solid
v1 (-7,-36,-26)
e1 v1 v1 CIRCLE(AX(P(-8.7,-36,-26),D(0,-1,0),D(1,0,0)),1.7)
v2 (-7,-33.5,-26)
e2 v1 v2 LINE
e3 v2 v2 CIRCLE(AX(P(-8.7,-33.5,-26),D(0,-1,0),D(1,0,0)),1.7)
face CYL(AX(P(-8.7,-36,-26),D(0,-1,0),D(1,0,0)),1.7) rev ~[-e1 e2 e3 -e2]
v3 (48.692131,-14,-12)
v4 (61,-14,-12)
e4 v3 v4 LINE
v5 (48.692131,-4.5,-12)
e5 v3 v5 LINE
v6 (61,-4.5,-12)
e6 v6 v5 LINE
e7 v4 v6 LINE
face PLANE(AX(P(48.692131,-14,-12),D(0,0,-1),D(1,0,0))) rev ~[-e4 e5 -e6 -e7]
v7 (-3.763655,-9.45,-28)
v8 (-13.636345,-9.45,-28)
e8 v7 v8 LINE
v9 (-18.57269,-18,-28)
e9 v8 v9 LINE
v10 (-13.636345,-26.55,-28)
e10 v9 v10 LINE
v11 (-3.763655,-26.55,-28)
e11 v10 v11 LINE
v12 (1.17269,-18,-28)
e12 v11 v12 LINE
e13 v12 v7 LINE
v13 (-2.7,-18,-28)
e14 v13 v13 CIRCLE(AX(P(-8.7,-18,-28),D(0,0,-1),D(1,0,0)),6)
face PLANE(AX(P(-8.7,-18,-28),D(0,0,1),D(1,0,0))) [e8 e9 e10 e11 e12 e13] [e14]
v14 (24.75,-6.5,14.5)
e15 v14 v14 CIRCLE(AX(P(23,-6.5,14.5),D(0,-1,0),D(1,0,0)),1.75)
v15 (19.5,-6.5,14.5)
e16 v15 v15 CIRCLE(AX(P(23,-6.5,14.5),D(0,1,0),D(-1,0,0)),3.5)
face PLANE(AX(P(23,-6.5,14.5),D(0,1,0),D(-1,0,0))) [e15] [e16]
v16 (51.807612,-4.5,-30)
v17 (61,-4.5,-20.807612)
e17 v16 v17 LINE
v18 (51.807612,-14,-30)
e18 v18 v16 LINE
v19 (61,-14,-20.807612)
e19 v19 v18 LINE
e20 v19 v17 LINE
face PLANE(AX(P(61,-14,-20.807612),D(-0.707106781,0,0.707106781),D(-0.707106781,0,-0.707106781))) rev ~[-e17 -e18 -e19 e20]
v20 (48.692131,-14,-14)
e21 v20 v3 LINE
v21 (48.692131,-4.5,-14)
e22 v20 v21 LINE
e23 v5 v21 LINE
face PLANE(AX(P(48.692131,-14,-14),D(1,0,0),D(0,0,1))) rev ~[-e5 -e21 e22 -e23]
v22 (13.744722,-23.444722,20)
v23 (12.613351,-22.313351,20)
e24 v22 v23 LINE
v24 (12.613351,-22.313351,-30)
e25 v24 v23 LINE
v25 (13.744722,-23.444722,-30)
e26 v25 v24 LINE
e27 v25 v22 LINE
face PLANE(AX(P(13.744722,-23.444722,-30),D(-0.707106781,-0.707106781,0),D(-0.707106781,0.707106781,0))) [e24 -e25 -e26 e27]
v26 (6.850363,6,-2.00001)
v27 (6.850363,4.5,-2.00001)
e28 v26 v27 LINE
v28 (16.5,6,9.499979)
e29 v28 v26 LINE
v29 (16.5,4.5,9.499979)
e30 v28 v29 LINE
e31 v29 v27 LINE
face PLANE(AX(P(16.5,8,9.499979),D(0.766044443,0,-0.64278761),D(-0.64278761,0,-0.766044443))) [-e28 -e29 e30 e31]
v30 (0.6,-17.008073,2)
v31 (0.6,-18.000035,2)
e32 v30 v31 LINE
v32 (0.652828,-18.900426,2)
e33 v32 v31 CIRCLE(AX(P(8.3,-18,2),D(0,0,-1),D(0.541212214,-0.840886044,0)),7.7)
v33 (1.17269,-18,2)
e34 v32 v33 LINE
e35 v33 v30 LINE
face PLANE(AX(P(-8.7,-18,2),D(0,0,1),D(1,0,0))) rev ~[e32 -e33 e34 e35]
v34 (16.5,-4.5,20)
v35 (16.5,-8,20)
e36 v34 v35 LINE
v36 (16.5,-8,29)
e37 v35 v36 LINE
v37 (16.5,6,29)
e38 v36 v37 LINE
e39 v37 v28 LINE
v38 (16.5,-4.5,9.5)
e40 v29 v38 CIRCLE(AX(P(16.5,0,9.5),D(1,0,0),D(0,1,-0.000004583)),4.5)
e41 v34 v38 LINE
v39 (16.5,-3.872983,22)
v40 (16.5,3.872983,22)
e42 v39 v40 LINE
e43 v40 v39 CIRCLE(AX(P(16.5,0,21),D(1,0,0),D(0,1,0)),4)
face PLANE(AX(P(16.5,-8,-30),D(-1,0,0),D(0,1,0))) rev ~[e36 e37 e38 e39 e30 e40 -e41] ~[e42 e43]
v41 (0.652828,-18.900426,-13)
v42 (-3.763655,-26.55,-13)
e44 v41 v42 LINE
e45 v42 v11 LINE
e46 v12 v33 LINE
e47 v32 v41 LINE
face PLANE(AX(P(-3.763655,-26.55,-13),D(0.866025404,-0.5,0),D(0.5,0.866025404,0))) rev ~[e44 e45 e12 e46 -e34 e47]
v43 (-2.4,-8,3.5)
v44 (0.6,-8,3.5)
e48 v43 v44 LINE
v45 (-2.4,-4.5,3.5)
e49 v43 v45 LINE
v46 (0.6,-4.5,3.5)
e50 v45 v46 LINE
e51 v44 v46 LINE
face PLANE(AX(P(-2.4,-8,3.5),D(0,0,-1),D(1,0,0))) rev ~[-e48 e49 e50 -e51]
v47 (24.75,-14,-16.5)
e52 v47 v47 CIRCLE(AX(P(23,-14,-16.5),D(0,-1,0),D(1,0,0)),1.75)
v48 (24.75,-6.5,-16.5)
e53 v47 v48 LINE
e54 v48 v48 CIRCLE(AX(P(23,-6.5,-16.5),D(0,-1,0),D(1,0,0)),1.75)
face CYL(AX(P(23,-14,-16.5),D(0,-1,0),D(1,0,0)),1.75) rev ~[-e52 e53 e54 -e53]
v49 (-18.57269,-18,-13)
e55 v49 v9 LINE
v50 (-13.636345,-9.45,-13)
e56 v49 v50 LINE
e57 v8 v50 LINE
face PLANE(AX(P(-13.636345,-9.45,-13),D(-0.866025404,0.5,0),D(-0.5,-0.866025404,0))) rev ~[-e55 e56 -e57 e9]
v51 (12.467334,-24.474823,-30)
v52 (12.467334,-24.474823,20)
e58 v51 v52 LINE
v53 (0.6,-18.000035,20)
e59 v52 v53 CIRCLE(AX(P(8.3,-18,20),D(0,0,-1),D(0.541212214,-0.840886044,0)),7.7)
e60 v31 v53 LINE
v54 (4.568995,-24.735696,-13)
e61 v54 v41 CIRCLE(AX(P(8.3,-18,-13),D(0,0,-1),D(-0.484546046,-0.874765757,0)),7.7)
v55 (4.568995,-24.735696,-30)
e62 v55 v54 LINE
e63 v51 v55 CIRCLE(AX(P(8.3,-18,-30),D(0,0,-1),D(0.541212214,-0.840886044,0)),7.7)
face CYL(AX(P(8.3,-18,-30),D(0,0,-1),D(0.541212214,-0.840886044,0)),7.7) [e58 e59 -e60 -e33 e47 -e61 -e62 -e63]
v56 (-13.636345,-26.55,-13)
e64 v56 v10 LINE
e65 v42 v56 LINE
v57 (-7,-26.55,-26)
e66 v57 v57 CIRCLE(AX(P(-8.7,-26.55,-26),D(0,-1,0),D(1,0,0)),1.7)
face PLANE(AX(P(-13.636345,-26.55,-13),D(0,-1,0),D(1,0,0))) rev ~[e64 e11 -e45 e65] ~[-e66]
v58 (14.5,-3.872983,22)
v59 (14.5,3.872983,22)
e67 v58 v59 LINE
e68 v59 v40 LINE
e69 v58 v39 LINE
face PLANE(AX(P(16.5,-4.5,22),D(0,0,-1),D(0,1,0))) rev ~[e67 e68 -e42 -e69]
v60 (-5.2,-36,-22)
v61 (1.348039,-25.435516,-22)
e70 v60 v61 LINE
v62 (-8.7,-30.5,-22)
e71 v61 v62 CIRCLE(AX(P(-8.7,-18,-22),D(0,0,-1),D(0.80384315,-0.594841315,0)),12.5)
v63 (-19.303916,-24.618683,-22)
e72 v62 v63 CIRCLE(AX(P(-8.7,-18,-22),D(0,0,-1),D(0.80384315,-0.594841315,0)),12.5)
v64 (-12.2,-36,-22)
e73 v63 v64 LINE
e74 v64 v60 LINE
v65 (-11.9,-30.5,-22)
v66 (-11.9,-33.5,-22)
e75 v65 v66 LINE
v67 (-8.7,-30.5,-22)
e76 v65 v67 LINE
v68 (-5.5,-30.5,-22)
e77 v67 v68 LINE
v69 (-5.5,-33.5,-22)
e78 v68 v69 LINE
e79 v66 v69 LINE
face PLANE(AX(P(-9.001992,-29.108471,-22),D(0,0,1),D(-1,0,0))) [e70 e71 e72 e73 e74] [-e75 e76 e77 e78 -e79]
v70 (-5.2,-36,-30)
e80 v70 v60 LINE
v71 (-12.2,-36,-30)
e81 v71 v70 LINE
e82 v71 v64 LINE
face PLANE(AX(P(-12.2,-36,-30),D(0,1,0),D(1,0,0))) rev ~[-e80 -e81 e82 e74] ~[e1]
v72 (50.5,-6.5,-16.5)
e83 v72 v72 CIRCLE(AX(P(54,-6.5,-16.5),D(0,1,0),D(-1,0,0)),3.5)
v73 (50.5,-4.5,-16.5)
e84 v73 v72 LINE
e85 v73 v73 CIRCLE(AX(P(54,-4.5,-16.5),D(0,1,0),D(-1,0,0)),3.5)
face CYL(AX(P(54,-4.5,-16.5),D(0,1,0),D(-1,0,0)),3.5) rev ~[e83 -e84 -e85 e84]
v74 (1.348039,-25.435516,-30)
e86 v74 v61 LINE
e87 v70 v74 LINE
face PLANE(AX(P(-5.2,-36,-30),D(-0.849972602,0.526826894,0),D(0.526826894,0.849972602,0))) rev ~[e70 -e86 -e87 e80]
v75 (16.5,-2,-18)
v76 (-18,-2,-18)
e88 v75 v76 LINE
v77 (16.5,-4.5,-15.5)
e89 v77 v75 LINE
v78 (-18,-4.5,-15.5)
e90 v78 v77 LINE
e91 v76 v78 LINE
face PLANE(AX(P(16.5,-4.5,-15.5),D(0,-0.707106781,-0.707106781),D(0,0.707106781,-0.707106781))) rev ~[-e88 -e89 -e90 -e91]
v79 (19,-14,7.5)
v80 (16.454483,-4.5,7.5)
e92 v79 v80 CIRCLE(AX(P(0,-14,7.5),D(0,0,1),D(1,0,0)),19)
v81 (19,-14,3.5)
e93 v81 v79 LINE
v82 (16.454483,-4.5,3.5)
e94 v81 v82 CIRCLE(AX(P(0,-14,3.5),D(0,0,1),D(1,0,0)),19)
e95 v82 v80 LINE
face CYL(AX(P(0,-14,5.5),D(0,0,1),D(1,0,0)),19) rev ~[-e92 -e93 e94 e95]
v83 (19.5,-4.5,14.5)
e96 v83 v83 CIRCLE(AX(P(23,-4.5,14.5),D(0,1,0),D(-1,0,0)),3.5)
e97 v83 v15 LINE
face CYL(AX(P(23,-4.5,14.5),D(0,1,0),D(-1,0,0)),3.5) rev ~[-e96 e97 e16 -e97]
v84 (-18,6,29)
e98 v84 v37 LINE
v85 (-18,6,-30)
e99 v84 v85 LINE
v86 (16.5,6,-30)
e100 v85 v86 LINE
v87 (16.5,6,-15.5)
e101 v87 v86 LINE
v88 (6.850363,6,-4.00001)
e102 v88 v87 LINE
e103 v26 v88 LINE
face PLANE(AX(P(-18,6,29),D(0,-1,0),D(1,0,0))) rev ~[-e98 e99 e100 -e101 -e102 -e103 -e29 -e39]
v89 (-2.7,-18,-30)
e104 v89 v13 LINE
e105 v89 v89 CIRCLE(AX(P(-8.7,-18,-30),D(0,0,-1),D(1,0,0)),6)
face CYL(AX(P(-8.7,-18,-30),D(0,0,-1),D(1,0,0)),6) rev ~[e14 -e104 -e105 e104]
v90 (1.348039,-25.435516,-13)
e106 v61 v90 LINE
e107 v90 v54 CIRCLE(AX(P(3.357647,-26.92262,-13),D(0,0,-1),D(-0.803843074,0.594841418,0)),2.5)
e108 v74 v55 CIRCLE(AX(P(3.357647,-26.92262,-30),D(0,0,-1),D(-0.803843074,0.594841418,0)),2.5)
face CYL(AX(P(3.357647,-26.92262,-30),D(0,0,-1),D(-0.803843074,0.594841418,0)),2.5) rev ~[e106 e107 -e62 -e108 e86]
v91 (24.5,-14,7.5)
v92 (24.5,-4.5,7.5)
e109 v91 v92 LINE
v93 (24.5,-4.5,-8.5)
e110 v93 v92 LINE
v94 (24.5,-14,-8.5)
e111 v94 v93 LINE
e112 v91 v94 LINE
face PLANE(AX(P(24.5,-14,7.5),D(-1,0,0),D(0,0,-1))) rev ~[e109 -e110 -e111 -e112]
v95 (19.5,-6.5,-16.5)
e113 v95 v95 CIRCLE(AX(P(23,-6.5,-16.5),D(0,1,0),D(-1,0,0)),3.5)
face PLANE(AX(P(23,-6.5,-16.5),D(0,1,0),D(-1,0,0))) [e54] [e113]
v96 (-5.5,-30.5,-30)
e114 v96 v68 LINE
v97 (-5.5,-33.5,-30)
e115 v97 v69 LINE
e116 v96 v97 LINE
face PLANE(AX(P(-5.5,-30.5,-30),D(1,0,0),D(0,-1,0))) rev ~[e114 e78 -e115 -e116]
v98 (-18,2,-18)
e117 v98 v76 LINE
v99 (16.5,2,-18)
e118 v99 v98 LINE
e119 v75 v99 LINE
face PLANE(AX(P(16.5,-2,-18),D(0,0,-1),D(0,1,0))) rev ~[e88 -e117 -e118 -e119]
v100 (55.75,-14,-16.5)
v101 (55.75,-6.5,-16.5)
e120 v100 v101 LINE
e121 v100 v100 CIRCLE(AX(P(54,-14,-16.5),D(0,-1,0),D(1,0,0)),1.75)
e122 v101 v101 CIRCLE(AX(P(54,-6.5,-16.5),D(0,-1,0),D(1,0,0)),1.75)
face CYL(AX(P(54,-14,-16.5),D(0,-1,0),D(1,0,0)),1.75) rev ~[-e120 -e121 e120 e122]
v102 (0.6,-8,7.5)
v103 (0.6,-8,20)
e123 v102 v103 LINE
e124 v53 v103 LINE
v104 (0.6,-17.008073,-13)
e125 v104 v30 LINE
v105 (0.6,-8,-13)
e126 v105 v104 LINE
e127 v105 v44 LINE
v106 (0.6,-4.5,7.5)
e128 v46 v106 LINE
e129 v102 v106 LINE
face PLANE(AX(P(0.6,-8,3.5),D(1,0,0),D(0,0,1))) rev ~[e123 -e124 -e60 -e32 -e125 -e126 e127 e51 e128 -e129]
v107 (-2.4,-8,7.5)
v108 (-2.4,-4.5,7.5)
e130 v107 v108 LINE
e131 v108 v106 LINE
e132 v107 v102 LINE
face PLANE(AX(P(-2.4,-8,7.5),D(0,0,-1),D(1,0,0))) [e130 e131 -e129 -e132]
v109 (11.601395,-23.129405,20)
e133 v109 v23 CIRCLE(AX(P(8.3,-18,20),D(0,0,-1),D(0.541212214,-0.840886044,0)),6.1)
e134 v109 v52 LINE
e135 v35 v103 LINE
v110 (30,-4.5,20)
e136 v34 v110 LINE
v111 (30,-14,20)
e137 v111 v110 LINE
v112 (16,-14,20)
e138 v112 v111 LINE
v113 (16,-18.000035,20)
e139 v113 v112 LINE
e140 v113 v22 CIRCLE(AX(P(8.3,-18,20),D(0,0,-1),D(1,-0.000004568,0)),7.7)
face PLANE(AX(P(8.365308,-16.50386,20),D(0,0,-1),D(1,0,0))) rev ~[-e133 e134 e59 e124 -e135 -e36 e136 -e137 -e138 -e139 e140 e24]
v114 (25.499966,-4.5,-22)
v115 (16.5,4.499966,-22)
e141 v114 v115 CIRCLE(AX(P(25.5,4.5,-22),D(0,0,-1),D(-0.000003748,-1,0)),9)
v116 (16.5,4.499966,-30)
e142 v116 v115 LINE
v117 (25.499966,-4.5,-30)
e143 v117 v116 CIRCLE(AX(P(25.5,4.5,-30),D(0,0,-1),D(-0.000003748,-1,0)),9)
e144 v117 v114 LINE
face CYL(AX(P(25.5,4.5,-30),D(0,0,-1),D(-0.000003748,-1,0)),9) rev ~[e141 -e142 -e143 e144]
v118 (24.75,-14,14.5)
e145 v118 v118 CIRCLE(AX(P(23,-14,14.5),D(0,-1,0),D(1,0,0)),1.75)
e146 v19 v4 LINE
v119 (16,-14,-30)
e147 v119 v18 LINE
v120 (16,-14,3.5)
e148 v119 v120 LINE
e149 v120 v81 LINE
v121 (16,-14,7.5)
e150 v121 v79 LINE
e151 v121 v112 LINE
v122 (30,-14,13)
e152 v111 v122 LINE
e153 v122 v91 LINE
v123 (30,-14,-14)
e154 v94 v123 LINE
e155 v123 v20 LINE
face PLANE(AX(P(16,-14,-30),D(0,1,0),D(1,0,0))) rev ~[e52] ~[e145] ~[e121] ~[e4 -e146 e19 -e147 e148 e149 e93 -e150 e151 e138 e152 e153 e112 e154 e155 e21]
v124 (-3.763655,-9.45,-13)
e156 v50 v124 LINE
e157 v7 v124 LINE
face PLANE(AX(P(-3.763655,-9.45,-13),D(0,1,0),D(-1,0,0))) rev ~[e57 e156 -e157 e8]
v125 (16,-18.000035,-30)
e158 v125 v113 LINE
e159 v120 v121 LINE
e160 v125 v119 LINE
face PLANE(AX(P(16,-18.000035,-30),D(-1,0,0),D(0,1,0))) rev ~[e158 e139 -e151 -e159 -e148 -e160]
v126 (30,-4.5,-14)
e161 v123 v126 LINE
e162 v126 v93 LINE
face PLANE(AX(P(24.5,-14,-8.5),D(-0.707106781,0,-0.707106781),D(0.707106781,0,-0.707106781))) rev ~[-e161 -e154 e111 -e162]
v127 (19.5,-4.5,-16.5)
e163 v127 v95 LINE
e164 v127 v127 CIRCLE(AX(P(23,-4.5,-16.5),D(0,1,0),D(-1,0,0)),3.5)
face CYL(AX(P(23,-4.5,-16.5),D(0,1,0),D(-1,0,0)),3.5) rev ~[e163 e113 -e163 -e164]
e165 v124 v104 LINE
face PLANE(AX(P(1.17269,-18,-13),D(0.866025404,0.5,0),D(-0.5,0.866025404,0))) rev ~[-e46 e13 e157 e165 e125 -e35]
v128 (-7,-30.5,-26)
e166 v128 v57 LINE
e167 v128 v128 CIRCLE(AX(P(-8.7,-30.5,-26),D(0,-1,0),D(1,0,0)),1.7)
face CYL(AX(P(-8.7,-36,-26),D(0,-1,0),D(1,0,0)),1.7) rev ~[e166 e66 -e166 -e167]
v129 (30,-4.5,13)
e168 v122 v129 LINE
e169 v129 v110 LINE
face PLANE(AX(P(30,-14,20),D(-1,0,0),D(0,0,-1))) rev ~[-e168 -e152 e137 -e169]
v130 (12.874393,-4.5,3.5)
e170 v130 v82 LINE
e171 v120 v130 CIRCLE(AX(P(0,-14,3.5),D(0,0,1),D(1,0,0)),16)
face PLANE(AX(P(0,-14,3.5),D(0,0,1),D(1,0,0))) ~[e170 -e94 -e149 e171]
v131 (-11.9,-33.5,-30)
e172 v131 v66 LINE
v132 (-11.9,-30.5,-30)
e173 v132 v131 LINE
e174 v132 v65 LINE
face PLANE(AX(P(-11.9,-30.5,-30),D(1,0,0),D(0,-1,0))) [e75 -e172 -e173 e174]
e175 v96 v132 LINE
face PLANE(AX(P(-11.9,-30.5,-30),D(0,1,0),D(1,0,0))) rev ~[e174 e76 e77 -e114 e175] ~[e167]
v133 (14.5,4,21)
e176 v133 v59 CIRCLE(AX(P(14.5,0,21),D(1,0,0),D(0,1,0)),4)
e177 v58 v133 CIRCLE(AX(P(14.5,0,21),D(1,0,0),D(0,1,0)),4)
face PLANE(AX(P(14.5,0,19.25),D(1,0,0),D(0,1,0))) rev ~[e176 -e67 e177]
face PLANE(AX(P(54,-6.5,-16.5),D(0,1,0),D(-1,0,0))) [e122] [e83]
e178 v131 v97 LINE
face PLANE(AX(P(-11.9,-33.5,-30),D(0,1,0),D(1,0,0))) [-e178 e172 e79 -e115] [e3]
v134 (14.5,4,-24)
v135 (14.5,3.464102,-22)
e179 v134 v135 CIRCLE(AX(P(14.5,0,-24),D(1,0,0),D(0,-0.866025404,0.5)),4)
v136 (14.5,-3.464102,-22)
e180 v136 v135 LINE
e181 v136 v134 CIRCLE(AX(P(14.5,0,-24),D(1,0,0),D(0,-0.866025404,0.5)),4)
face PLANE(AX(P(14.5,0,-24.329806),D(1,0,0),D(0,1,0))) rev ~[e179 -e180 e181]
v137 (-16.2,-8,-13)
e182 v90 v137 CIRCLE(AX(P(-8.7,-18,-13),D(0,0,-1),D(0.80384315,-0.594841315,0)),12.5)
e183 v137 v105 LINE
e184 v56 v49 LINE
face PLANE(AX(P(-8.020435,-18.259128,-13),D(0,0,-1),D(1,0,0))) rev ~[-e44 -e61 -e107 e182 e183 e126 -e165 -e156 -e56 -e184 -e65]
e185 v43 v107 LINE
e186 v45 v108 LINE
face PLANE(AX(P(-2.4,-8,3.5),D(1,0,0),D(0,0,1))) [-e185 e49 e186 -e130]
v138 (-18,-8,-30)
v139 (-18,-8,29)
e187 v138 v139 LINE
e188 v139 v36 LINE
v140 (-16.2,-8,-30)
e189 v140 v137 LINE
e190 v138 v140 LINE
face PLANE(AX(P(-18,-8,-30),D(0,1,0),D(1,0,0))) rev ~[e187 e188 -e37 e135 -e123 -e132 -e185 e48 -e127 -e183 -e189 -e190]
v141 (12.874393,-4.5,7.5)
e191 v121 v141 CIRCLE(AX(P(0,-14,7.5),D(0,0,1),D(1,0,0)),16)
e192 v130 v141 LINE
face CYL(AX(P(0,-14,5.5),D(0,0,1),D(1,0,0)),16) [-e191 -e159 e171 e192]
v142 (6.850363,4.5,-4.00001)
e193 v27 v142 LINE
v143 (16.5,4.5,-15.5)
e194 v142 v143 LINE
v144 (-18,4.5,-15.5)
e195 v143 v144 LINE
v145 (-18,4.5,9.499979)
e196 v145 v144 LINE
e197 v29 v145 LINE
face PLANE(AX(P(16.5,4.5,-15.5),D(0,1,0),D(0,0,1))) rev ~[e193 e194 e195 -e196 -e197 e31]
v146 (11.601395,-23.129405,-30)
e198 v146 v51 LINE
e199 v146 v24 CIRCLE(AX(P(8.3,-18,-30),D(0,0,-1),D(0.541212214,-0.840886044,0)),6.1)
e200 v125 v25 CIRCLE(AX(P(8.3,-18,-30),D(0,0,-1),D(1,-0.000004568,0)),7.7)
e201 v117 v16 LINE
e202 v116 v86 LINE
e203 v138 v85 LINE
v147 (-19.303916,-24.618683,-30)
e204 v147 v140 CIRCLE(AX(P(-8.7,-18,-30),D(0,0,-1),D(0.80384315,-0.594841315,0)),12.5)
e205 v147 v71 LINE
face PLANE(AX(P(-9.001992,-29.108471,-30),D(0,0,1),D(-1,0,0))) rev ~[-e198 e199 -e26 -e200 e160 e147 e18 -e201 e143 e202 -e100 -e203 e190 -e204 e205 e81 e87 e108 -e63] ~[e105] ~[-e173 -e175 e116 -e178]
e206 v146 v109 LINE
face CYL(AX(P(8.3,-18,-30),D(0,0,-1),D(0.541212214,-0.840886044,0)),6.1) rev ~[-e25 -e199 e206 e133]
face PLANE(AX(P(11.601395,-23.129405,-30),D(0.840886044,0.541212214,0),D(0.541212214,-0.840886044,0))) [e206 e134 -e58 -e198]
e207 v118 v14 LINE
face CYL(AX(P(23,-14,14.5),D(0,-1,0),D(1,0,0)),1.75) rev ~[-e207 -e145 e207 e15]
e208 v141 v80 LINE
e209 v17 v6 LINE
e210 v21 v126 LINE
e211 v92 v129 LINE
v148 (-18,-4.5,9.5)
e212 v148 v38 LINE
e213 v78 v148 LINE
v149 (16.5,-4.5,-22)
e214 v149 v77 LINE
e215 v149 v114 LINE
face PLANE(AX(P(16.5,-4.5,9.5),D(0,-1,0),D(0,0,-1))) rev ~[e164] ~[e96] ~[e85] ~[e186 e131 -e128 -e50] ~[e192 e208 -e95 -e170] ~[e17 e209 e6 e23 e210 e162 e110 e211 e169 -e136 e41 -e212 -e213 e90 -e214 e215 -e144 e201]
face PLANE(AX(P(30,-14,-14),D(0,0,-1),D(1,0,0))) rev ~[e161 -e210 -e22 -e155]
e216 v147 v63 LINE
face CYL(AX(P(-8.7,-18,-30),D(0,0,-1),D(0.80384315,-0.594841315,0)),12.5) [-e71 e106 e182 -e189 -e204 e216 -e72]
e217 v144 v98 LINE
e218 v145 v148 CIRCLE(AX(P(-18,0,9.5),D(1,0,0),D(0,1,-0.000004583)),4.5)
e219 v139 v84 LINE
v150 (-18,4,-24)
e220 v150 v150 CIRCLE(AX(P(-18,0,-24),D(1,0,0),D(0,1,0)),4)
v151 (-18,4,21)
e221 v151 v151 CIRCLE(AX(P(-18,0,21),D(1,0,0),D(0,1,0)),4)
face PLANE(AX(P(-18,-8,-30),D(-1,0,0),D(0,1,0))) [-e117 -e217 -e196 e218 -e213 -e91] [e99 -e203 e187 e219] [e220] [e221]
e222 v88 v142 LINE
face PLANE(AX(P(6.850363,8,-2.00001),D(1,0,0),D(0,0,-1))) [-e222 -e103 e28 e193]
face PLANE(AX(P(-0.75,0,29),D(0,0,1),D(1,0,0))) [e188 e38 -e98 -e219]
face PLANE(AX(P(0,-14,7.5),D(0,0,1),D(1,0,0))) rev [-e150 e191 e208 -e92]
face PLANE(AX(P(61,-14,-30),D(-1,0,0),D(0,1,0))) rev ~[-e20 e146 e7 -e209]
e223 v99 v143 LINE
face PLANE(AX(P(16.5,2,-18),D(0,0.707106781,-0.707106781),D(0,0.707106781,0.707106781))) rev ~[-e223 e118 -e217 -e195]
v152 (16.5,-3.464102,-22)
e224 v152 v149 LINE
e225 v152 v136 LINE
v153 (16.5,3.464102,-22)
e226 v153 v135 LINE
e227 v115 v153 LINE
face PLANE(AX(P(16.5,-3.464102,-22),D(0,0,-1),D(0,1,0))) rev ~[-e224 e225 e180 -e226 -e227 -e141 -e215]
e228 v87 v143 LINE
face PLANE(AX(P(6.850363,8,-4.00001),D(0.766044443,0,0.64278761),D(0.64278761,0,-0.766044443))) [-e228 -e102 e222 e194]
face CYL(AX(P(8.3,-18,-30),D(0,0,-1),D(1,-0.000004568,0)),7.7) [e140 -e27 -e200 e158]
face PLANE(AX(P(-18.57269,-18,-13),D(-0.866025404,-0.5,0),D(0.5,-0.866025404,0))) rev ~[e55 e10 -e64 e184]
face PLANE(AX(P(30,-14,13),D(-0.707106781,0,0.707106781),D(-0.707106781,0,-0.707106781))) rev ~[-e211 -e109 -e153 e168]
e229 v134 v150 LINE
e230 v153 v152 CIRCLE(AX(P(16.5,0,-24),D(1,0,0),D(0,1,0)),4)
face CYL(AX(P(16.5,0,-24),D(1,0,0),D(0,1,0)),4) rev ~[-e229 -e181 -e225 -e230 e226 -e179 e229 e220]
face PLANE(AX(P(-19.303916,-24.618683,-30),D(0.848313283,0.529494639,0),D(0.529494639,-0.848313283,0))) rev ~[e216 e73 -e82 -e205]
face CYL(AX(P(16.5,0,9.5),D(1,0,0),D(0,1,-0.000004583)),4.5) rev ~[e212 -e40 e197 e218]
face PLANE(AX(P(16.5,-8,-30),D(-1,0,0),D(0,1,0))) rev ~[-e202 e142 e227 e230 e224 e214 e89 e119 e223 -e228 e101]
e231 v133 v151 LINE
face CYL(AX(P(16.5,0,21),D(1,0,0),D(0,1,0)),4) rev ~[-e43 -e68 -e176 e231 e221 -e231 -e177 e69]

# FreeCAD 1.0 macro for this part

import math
import FreeCAD as App
import Part
import Sketcher

V = App.Vector
Q = App.Units.Quantity

doc = App.newDocument("Part")
body = doc.addObject("PartDesign::Body", "Body")

# Sketch on XY plane
sketch1 = body.newObject("Sketcher::SketchObject", "Sketch")
sketch1.AttachmentSupport = (doc.getObject("XY_Plane"), [""])
sketch1.MapMode = "FlatFace"
sketch1.AttachmentOffset = App.Placement(V(0, 0, -30), App.Rotation())
sketch1.addGeometry([
    Part.LineSegment(V(-18, 8, 0), V(-18, -8, 0)),
    Part.LineSegment(V(-18, -8, 0), V(16, -8, 0)),
    Part.LineSegment(V(16, -8, 0), V(16, 8, 0)),
    Part.LineSegment(V(16, 8, 0), V(-18, 8, 0)),
], False)
sketch1.addConstraint([
    Sketcher.Constraint("Coincident", 0, 2, 1, 1),
    Sketcher.Constraint("Coincident", 1, 2, 2, 1),
    Sketcher.Constraint("Coincident", 2, 2, 3, 1),
    Sketcher.Constraint("Coincident", 3, 2, 0, 1),
    Sketcher.Constraint("Vertical", 0),
    Sketcher.Constraint("Horizontal", 1),
    Sketcher.Constraint("Vertical", 2),
    Sketcher.Constraint("Horizontal", 3),
    Sketcher.Constraint("DistanceY", 0, 2, 0, 1, Q("16 mm")),
    Sketcher.Constraint("DistanceX", 1, 1, 1, 2, Q("34.5 mm")),
    Sketcher.Constraint("DistanceX", 0, 2, -1, 1, Q("18 mm")),
    Sketcher.Constraint("DistanceY", 0, 2, -1, 1, Q("8 mm")),
])
pad1 = body.newObject("PartDesign::Pad", "Pad")
pad1.Profile = sketch1
pad1.Length = 59

# Sketch on YZ plane
sketch2 = body.newObject("Sketcher::SketchObject", "Sketch001")
sketch2.AttachmentSupport = (doc.getObject("YZ_Plane"), [""])
sketch2.MapMode = "FlatFace"
sketch2.AttachmentOffset = App.Placement(V(0, 0, 16.5), App.Rotation())
sketch2.addGeometry([
    Part.Circle(V(0, 21, 0), V(0, 0, 1), 4),  # 0
    Part.Circle(V(0, -24, 0), V(0, 0, 1), 4),  # 1
    Part.ArcOfCircle(Part.Circle(V(0, 9.5, 0), V(0, 0, 1), 4.5), math.radians(0), math.radians(180)),  # 2
    Part.LineSegment(V(-4.5, 9.5, 0), V(-4.5, -15.5, 0)),  # 3
    Part.LineSegment(V(-4.5, -15.5, 0), V(-2, -18, 0)),  # 4
    Part.LineSegment(V(-2, -18, 0), V(2, -18, 0)),  # 5
    Part.LineSegment(V(2, -18, 0), V(4.5, -15.5, 0)),  # 6
    Part.LineSegment(V(4.5, -15.5, 0), V(4.5, 9.5, 0)),  # 7
], False)
sketch2.addConstraint([
    Sketcher.Constraint("Tangent", 2, 2, 3, 1),
    Sketcher.Constraint("Coincident", 3, 2, 4, 1),
    Sketcher.Constraint("Coincident", 4, 2, 5, 1),
    Sketcher.Constraint("Coincident", 5, 2, 6, 1),
    Sketcher.Constraint("Coincident", 6, 2, 7, 1),
    Sketcher.Constraint("Coincident", 7, 2, 2, 1),
    Sketcher.Constraint("Vertical", 3),
    Sketcher.Constraint("Horizontal", 5),
    Sketcher.Constraint("Vertical", 7),
    Sketcher.Constraint("Equal", 0, 1),
    Sketcher.Constraint("Symmetric", 3, 2, 6, 2, -2),
    Sketcher.Constraint("PointOnObject", 0, 3, -2),
    Sketcher.Constraint("PointOnObject", 1, 3, -2),
    Sketcher.Constraint("Perpendicular", 4, 6),
    Sketcher.Constraint("Equal", 4, 6),
    Sketcher.Constraint("Diameter", 0, Q("8 mm")),
    Sketcher.Constraint("Radius", 2, Q("4.5 mm")),
    Sketcher.Constraint("DistanceX", 5, 1, 5, 2, Q("4 mm")),
    Sketcher.Constraint("DistanceY", 3, 2, 3, 1, Q("25 mm")),
    Sketcher.Constraint("DistanceY", -1, 1, 0, 3, Q("21 mm")),
    Sketcher.Constraint("DistanceY", 1, 3, -1, 1, Q("24 mm")),
    Sketcher.Constraint("DistanceY", 4, 2, -1, 1, Q("18 mm")),
    Sketcher.Constraint("DistanceY", 7, 1, 7, 2, Q("24.999979 mm")),
])
pocket1 = body.newObject("PartDesign::Pocket", "Pocket")
pocket1.Profile = sketch2
pocket1.Type = "ThroughAll"

# Sketch on XZ plane
sketch3 = body.newObject("Sketcher::SketchObject", "Sketch002")
sketch3.AttachmentSupport = (doc.getObject("XZ_Plane"), [""])
sketch3.MapMode = "FlatFace"
sketch3.AttachmentOffset = App.Placement(V(0, 0, -8), App.Rotation())
sketch3.addGeometry([
    Part.LineSegment(V(6.9, -2, 0), V(16.5, 9.5, 0)),
    Part.LineSegment(V(16.5, 9.5, 0), V(16.5, -15.5, 0)),
    Part.LineSegment(V(16.5, -15.5, 0), V(6.9, -4, 0)),
    Part.LineSegment(V(6.9, -4, 0), V(6.9, -2, 0)),
], False)
sketch3.addConstraint([
    Sketcher.Constraint("Coincident", 0, 2, 1, 1),
    Sketcher.Constraint("Coincident", 1, 2, 2, 1),
    Sketcher.Constraint("Coincident", 2, 2, 3, 1),
    Sketcher.Constraint("Coincident", 3, 2, 0, 1),
    Sketcher.Constraint("Vertical", 1),
    Sketcher.Constraint("Vertical", 3),
    Sketcher.Constraint("Equal", 0, 2),
    Sketcher.Constraint("DistanceY", 3, 1, 3, 2, Q("2 mm")),
    Sketcher.Constraint("Angle", 0, Q("50 deg")),
    Sketcher.Constraint("DistanceX", -1, 1, 0, 2, Q("16.5 mm")),
    Sketcher.Constraint("DistanceY", 1, 2, -1, 1, Q("15.5 mm")),
    Sketcher.Constraint("DistanceY", 1, 2, 1, 1, Q("24.999979 mm")),
])
pocket2 = body.newObject("PartDesign::Pocket", "Pocket001")
pocket2.Profile = sketch3
pocket2.Length = 3.5
pocket2.Reversed = True
body2 = doc.addObject("PartDesign::Body", "Body001")

# Sketch on XY plane
sketch4 = body2.newObject("Sketcher::SketchObject", "Sketch003")
sketch4.AttachmentSupport = (doc.getObject("XY_Plane001"), [""])
sketch4.MapMode = "FlatFace"
sketch4.AttachmentOffset = App.Placement(V(0, 0, -30), App.Rotation())
sketch4.addGeometry([
    Part.LineSegment(V(16, -4, 0), V(16, -14, 0)),
    Part.LineSegment(V(16, -14, 0), V(61, -14, 0)),
    Part.LineSegment(V(61, -14, 0), V(61, -4, 0)),
    Part.LineSegment(V(61, -4, 0), V(16, -4, 0)),
], False)
sketch4.addConstraint([
    Sketcher.Constraint("Coincident", 0, 2, 1, 1),
    Sketcher.Constraint("Coincident", 1, 2, 2, 1),
    Sketcher.Constraint("Coincident", 2, 2, 3, 1),
    Sketcher.Constraint("Coincident", 3, 2, 0, 1),
    Sketcher.Constraint("Vertical", 0),
    Sketcher.Constraint("Horizontal", 1),
    Sketcher.Constraint("Vertical", 2),
    Sketcher.Constraint("Horizontal", 3),
    Sketcher.Constraint("DistanceX", 1, 1, 1, 2, Q("45 mm")),
    Sketcher.Constraint("DistanceY", 0, 2, 0, 1, Q("9.5 mm")),
    Sketcher.Constraint("DistanceX", -1, 1, 0, 2, Q("16 mm")),
    Sketcher.Constraint("DistanceY", 0, 2, -1, 1, Q("14 mm")),
])
pad2 = body2.newObject("PartDesign::Pad", "Pad001")
pad2.Profile = sketch4
pad2.Length = 50

# Sketch on XZ plane
sketch5 = body2.newObject("Sketcher::SketchObject", "Sketch004")
sketch5.AttachmentSupport = (doc.getObject("XZ_Plane001"), [""])
sketch5.MapMode = "FlatFace"
sketch5.AttachmentOffset = App.Placement(V(0, 0, 14), App.Rotation())
sketch5.addGeometry([
    Part.Circle(V(23, 14.5, 0), V(0, 0, 1), 1.8),  # 0
    Part.Circle(V(23, -16.5, 0), V(0, 0, 1), 1.8),  # 1
    Part.Circle(V(54, -16.5, 0), V(0, 0, 1), 1.8),  # 2
    Part.LineSegment(V(30, 20, 0), V(30, 13, 0)),  # 3
    Part.LineSegment(V(30, 13, 0), V(24.5, 7.5, 0)),  # 4
    Part.LineSegment(V(24.5, 7.5, 0), V(24.5, -8.5, 0)),  # 5
    Part.LineSegment(V(24.5, -8.5, 0), V(30, -14, 0)),  # 6
    Part.LineSegment(V(30, -14, 0), V(48.7, -14, 0)),  # 7
    Part.LineSegment(V(48.7, -14, 0), V(48.7, -12, 0)),  # 8
    Part.LineSegment(V(48.7, -12, 0), V(61, -12, 0)),  # 9
    Part.LineSegment(V(61, -12, 0), V(61, 20, 0)),  # 10
    Part.LineSegment(V(61, 20, 0), V(30, 20, 0)),  # 11
    Part.LineSegment(V(61, -20.8, 0), V(51.8, -30, 0)),  # 12
    Part.LineSegment(V(51.8, -30, 0), V(61, -30, 0)),  # 13
    Part.LineSegment(V(61, -30, 0), V(61, -20.8, 0)),  # 14
], False)
sketch5.addConstraint([
    Sketcher.Constraint("Coincident", 3, 2, 4, 1),
    Sketcher.Constraint("Coincident", 4, 2, 5, 1),
    Sketcher.Constraint("Coincident", 5, 2, 6, 1),
    Sketcher.Constraint("Coincident", 6, 2, 7, 1),
    Sketcher.Constraint("Coincident", 7, 2, 8, 1),
    Sketcher.Constraint("Coincident", 8, 2, 9, 1),
    Sketcher.Constraint("Coincident", 9, 2, 10, 1),
    Sketcher.Constraint("Coincident", 10, 2, 11, 1),
    Sketcher.Constraint("Coincident", 11, 2, 3, 1),
    Sketcher.Constraint("Coincident", 12, 2, 13, 1),
    Sketcher.Constraint("Coincident", 13, 2, 14, 1),
    Sketcher.Constraint("Coincident", 14, 2, 12, 1),
    Sketcher.Constraint("Vertical", 3),
    Sketcher.Constraint("Vertical", 5),
    Sketcher.Constraint("Horizontal", 7),
    Sketcher.Constraint("Vertical", 8),
    Sketcher.Constraint("Horizontal", 9),
    Sketcher.Constraint("Vertical", 10),
    Sketcher.Constraint("Horizontal", 11),
    Sketcher.Constraint("Horizontal", 13),
    Sketcher.Constraint("Vertical", 14),
    Sketcher.Constraint("Equal", 0, 1),
    Sketcher.Constraint("Equal", 1, 2),
    Sketcher.Constraint("Perpendicular", 4, 6),
    Sketcher.Constraint("Perpendicular", 6, 12),
    Sketcher.Constraint("Horizontal", 1, 3, 2, 3),
    Sketcher.Constraint("Vertical", 0, 3, 1, 3),
    Sketcher.Constraint("Vertical", 3, 2, 6, 2),
    Sketcher.Constraint("Vertical", 10, 2, 13, 2),
    Sketcher.Constraint("Equal", 13, 14),
    Sketcher.Constraint("Diameter", 0, Q("3.5 mm")),
    Sketcher.Constraint("DistanceX", 11, 2, 11, 1, Q("31 mm")),
    Sketcher.Constraint("DistanceY", 3, 2, 3, 1, Q("7 mm")),
    Sketcher.Constraint("DistanceY", 5, 2, 5, 1, Q("16 mm")),
    Sketcher.Constraint("DistanceY", 8, 1, 8, 2, Q("2 mm")),
    Sketcher.Constraint("DistanceY", 10, 1, 10, 2, Q("32 mm")),
    Sketcher.Constraint("Distance", 12, Q("13 mm")),
    Sketcher.Constraint("DistanceX", -1, 1, 0, 3, Q("23 mm")),
    Sketcher.Constraint("DistanceX", -1, 1, 2, 3, Q("54 mm")),
    Sketcher.Constraint("DistanceX", -1, 1, 3, 2, Q("30 mm")),
    Sketcher.Constraint("DistanceY", -1, 1, 3, 2, Q("13 mm")),
    Sketcher.Constraint("DistanceY", 12, 2, -1, 1, Q("30 mm")),
    Sketcher.Constraint("DistanceY", 1, 3, 0, 3, Q("31 mm")),
    Sketcher.Constraint("DistanceY", 4, 2, 0, 3, Q("7 mm")),
    Sketcher.Constraint("DistanceX", 7, 1, 7, 2, Q("18.692131 mm")),
])
pocket3 = body2.newObject("PartDesign::Pocket", "Pocket002")
pocket3.Profile = sketch5
pocket3.Type = "ThroughAll"
doc.recompute()

boolean = body2.newObject("PartDesign::Boolean", "Boolean")
boolean.Type = "Fuse"
boolean.addObjects([body])

# Sketch on XY plane
sketch6 = body2.newObject("Sketcher::SketchObject", "Sketch005")
sketch6.AttachmentSupport = (doc.getObject("XY_Plane001"), [""])
sketch6.MapMode = "FlatFace"
sketch6.AttachmentOffset = App.Placement(V(0, 0, -30), App.Rotation())
sketch6.addGeometry([
    Part.ArcOfCircle(Part.Circle(V(26, 4, 0), V(0, 0, 1), 9), math.radians(-180), math.radians(-90)),
    Part.LineSegment(V(25, -4, 0), V(16, -4, 0)),
    Part.LineSegment(V(16, -4, 0), V(16, 4, 0)),
], False)
sketch6.addConstraint([
    Sketcher.Constraint("Coincident", 0, 2, 1, 1),
    Sketcher.Constraint("Coincident", 1, 2, 2, 1),
    Sketcher.Constraint("Coincident", 2, 2, 0, 1),
    Sketcher.Constraint("Horizontal", 1),
    Sketcher.Constraint("Vertical", 2),
    Sketcher.Constraint("Equal", 1, 2),
    Sketcher.Constraint("Radius", 0, Q("9 mm")),
    Sketcher.Constraint("DistanceX", -1, 1, 0, 3, Q("25.5 mm")),
    Sketcher.Constraint("DistanceY", -1, 1, 0, 3, Q("4.5 mm")),
    Sketcher.Constraint("DistanceX", 1, 2, 1, 1, Q("8.999966 mm")),
])
pad3 = body2.newObject("PartDesign::Pad", "Pad002")
pad3.Profile = sketch6
pad3.Length = 8

# Sketch on YZ plane
sketch7 = body2.newObject("Sketcher::SketchObject", "Sketch006")
sketch7.AttachmentSupport = (doc.getObject("YZ_Plane001"), [""])
sketch7.MapMode = "FlatFace"
sketch7.AttachmentOffset = App.Placement(V(0, 0, 16.5), App.Rotation())
sketch7.addGeometry([
    Part.ArcOfCircle(Part.Circle(V(0, -24, 0), V(0, 0, 1), 4), math.radians(150), math.radians(390)),
    Part.LineSegment(V(3.5, -22, 0), V(-3.5, -22, 0)),
], False)
sketch7.addConstraint([
    Sketcher.Constraint("Coincident", 0, 1, 1, 2),
    Sketcher.Constraint("Coincident", 1, 1, 0, 2),
    Sketcher.Constraint("Horizontal", 1),
    Sketcher.Constraint("PointOnObject", 0, 3, -2),
    Sketcher.Constraint("Radius", 0, Q("4 mm")),
    Sketcher.Constraint("DistanceY", 0, 3, -1, 1, Q("24 mm")),
    Sketcher.Constraint("DistanceY", 0, 1, -1, 1, Q("22 mm")),
])
pad4 = body2.newObject("PartDesign::Pad", "Pad003")
pad4.Profile = sketch7
pad4.Length = 2
pad4.Reversed = True

# Sketch on XZ plane
sketch8 = body2.newObject("Sketcher::SketchObject", "Sketch007")
sketch8.AttachmentSupport = (doc.getObject("XZ_Plane001"), [""])
sketch8.MapMode = "FlatFace"
sketch8.AttachmentOffset = App.Placement(V(0, 0, 4.5), App.Rotation())
sketch8.addGeometry([
    Part.Circle(V(23, 14.5, 0), V(0, 0, 1), 3.5),
    Part.Circle(V(54, -16.5, 0), V(0, 0, 1), 3.5),
    Part.Circle(V(23, -16.5, 0), V(0, 0, 1), 3.5),
], False)
sketch8.addConstraint([
    Sketcher.Constraint("Equal", 0, 1),
    Sketcher.Constraint("Equal", 1, 2),
    Sketcher.Constraint("Horizontal", 1, 3, 2, 3),
    Sketcher.Constraint("Vertical", 0, 3, 2, 3),
    Sketcher.Constraint("Diameter", 0, Q("7 mm")),
    Sketcher.Constraint("DistanceX", -1, 1, 0, 3, Q("23 mm")),
    Sketcher.Constraint("DistanceX", -1, 1, 1, 3, Q("54 mm")),
    Sketcher.Constraint("DistanceY", 1, 3, 0, 3, Q("31 mm")),
    Sketcher.Constraint("DistanceY", -1, 1, 0, 3, Q("14.5 mm")),
])
pocket4 = body2.newObject("PartDesign::Pocket", "Pocket003")
pocket4.Profile = sketch8
pocket4.Length = 2
pocket4.Reversed = True

# Sketch on XY plane
sketch9 = body2.newObject("Sketcher::SketchObject", "Sketch008")
sketch9.AttachmentSupport = (doc.getObject("XY_Plane001"), [""])
sketch9.MapMode = "FlatFace"
sketch9.AttachmentOffset = App.Placement(V(0, 0, -30), App.Rotation())
sketch9.addGeometry([
    Part.ArcOfCircle(Part.Circle(V(8.3, -18, 0), V(0, 0, 1), 7.7), math.radians(-45), math.radians(0)),  # 0
    Part.LineSegment(V(13.7, -23.4, 0), V(12.6, -22.3, 0)),  # 1
    Part.ArcOfCircle(Part.Circle(V(8.3, -18, 0), V(0, 0, 1), 6.1), math.radians(-45), math.radians(303)),  # 2
    Part.LineSegment(V(11.6, -23.1, 0), V(12.5, -24.5, 0)),  # 3
    Part.ArcOfCircle(Part.Circle(V(8.3, -18, 0), V(0, 0, 1), 7.7), math.radians(-180), math.radians(-57)),  # 4
    Part.LineSegment(V(0.6, -18, 0), V(0.6, -8, 0)),  # 5
    Part.LineSegment(V(0.6, -8, 0), V(16, -8, 0)),  # 6
    Part.LineSegment(V(16, -8, 0), V(16, -18, 0)),  # 7
], False)
sketch9.addConstraint([
    Sketcher.Constraint("Coincident", 0, 1, 1, 1),
    Sketcher.Constraint("Coincident", 1, 2, 2, 1),
    Sketcher.Constraint("Coincident", 2, 2, 3, 1),
    Sketcher.Constraint("Coincident", 3, 2, 4, 2),
    Sketcher.Constraint("Coincident", 4, 1, 5, 1),
    Sketcher.Constraint("Coincident", 5, 2, 6, 1),
    Sketcher.Constraint("Coincident", 6, 2, 7, 1),
    Sketcher.Constraint("Coincident", 7, 2, 0, 2),
    Sketcher.Constraint("Vertical", 5),
    Sketcher.Constraint("Horizontal", 6),
    Sketcher.Constraint("Vertical", 7),
    Sketcher.Constraint("Coincident", 2, 3, 0, 3),
    Sketcher.Constraint("Coincident", 4, 3, 0, 3),
    Sketcher.Constraint("Equal", 0, 4),
    Sketcher.Constraint("Horizontal", 4, 1, 7, 2),
    Sketcher.Constraint("Radius", 0, Q("7.7 mm")),
    Sketcher.Constraint("Radius", 2, Q("6.1 mm")),
    Sketcher.Constraint("Angle", 1, Q("135 deg")),
    Sketcher.Constraint("DistanceY", 0, 3, -1, 1, Q("18 mm")),
    Sketcher.Constraint("DistanceY", 5, 2, -1, 1, Q("8 mm")),
    Sketcher.Constraint("DistanceX", -1, 1, 6, 2, Q("16 mm")),
    Sketcher.Constraint("DistanceY", 3, 2, 0, 1, Q("1.0301 mm")),
    Sketcher.Constraint("DistanceY", 5, 1, 5, 2, Q("10.000035 mm")),
    Sketcher.Constraint("DistanceX", -1, 1, 1, 2, Q("12.613351 mm")),
    Sketcher.Constraint("DistanceX", 2, 2, 3, 2, Q("0.86594 mm")),
])
pad5 = body2.newObject("PartDesign::Pad", "Pad004")
pad5.Profile = sketch9
pad5.Length = 50

# Sketch on XY plane
sketch10 = body2.newObject("Sketcher::SketchObject", "Sketch009")
sketch10.AttachmentSupport = (doc.getObject("XY_Plane001"), [""])
sketch10.MapMode = "FlatFace"
sketch10.AttachmentOffset = App.Placement(V(0, 0, -30), App.Rotation())
sketch10.addGeometry([
    Part.ArcOfCircle(Part.Circle(V(-8.7, -18, 0), V(0, 0, 1), 12.5), math.radians(127), math.radians(323)),  # 0
    Part.LineSegment(V(-16.2, -8, 0), V(0.6, -8, 0)),  # 1
    Part.LineSegment(V(0.6, -8, 0), V(0.6, -18, 0)),  # 2
    Part.ArcOfCircle(Part.Circle(V(8.3, -18, 0), V(0, 0, 1), 7.7), math.radians(-180), math.radians(-119)),  # 3
    Part.ArcOfCircle(Part.Circle(V(3.4, -26.9, 0), V(0, 0, 1), 2.5), math.radians(61), math.radians(143)),  # 4
    Part.Circle(V(-8.7, -18, 0), V(0, 0, 1), 6),  # 5
], False)
sketch10.addConstraint([
    Sketcher.Constraint("Coincident", 0, 1, 1, 1),
    Sketcher.Constraint("Coincident", 1, 2, 2, 1),
    Sketcher.Constraint("Tangent", 2, 2, 3, 1),
    Sketcher.Constraint("Coincident", 3, 2, 4, 1),
    Sketcher.Constraint("Tangent", 4, 2, 0, 2),
    Sketcher.Constraint("Horizontal", 1),
    Sketcher.Constraint("Vertical", 2),
    Sketcher.Constraint("Coincident", 5, 3, 0, 3),
    Sketcher.Constraint("Horizontal", 0, 3, 3, 3),
    Sketcher.Constraint("Diameter", 5, Q("12 mm")),
    Sketcher.Constraint("Radius", 0, Q("12.5 mm")),
    Sketcher.Constraint("Radius", 3, Q("7.7 mm")),
    Sketcher.Constraint("Radius", 4, Q("2.5 mm")),
    Sketcher.Constraint("DistanceX", 1, 1, 1, 2, Q("16.8 mm")),
    Sketcher.Constraint("DistanceY", 0, 3, -1, 1, Q("18 mm")),
    Sketcher.Constraint("DistanceY", 0, 1, -1, 1, Q("8 mm")),
    Sketcher.Constraint("DistanceX", 0, 3, -1, 1, Q("8.7 mm")),
    Sketcher.Constraint("DistanceX", 4, 3, 3, 2, Q("1.211348 mm")),
])
pad6 = body2.newObject("PartDesign::Pad", "Pad005")
pad6.Profile = sketch10
pad6.Length = 17

# Sketch on YZ plane
sketch11 = body2.newObject("Sketcher::SketchObject", "Sketch010")
sketch11.AttachmentSupport = (doc.getObject("YZ_Plane001"), [""])
sketch11.MapMode = "FlatFace"
sketch11.AttachmentOffset = App.Placement(V(0, 0, 16.5), App.Rotation())
sketch11.addGeometry([
    Part.LineSegment(V(-4, 22, 0), V(-4, 16, 0)),
    Part.LineSegment(V(-4, 16, 0), V(4, 16, 0)),
    Part.LineSegment(V(4, 16, 0), V(4, 22, 0)),
    Part.LineSegment(V(4, 22, 0), V(-4, 22, 0)),
], False)
sketch11.addConstraint([
    Sketcher.Constraint("Coincident", 0, 2, 1, 1),
    Sketcher.Constraint("Coincident", 1, 2, 2, 1),
    Sketcher.Constraint("Coincident", 2, 2, 3, 1),
    Sketcher.Constraint("Coincident", 3, 2, 0, 1),
    Sketcher.Constraint("Vertical", 0),
    Sketcher.Constraint("Horizontal", 1),
    Sketcher.Constraint("Vertical", 2),
    Sketcher.Constraint("Horizontal", 3),
    Sketcher.Constraint("DistanceX", 1, 1, 1, 2, Q("9 mm")),
    Sketcher.Constraint("DistanceY", 0, 2, 0, 1, Q("5.5 mm")),
    Sketcher.Constraint("DistanceY", -1, 1, 2, 2, Q("22 mm")),
    Sketcher.Constraint("DistanceX", 0, 2, -1, 1, Q("4.5 mm")),
])
pad7 = body2.newObject("PartDesign::Pad", "Pad006")
pad7.Profile = sketch11
pad7.Length = 2
pad7.Reversed = True

# Sketch on XZ plane
sketch12 = body2.newObject("Sketcher::SketchObject", "Sketch011")
sketch12.AttachmentSupport = (doc.getObject("XZ_Plane001"), [""])
sketch12.MapMode = "FlatFace"
sketch12.AttachmentOffset = App.Placement(V(0, 0, 14), App.Rotation())
sketch12.addGeometry([
    Part.LineSegment(V(16, 7.5, 0), V(16, 3.5, 0)),
    Part.LineSegment(V(16, 3.5, 0), V(19, 3.5, 0)),
    Part.LineSegment(V(19, 3.5, 0), V(19, 7.5, 0)),
    Part.LineSegment(V(19, 7.5, 0), V(16, 7.5, 0)),
], False)
sketch12.addConstraint([
    Sketcher.Constraint("Coincident", 0, 2, 1, 1),
    Sketcher.Constraint("Coincident", 1, 2, 2, 1),
    Sketcher.Constraint("Coincident", 2, 2, 3, 1),
    Sketcher.Constraint("Coincident", 3, 2, 0, 1),
    Sketcher.Constraint("Vertical", 0),
    Sketcher.Constraint("Horizontal", 1),
    Sketcher.Constraint("Vertical", 2),
    Sketcher.Constraint("Horizontal", 3),
    Sketcher.Constraint("DistanceX", 1, 1, 1, 2, Q("3 mm")),
    Sketcher.Constraint("DistanceY", 0, 2, 0, 1, Q("4 mm")),
    Sketcher.Constraint("DistanceX", -1, 1, 0, 2, Q("16 mm")),
    Sketcher.Constraint("DistanceY", -1, 1, 0, 2, Q("3.5 mm")),
])
groove = body2.newObject("PartDesign::Groove", "Groove")
groove.Profile = sketch12
groove.ReferenceAxis = (sketch12, ["V_Axis"])
groove.Angle = 40

# Sketch on XZ plane
sketch13 = body2.newObject("Sketcher::SketchObject", "Sketch012")
sketch13.AttachmentSupport = (doc.getObject("XZ_Plane001"), [""])
sketch13.MapMode = "FlatFace"
sketch13.AttachmentOffset = App.Placement(V(0, 0, 8), App.Rotation())
sketch13.addGeometry([
    Part.LineSegment(V(-2.4, 7.5, 0), V(-2.4, 3.5, 0)),
    Part.LineSegment(V(-2.4, 3.5, 0), V(0.6, 3.5, 0)),
    Part.LineSegment(V(0.6, 3.5, 0), V(0.6, 7.5, 0)),
    Part.LineSegment(V(0.6, 7.5, 0), V(-2.4, 7.5, 0)),
], False)
sketch13.addConstraint([
    Sketcher.Constraint("Coincident", 0, 2, 1, 1),
    Sketcher.Constraint("Coincident", 1, 2, 2, 1),
    Sketcher.Constraint("Coincident", 2, 2, 3, 1),
    Sketcher.Constraint("Coincident", 3, 2, 0, 1),
    Sketcher.Constraint("Vertical", 0),
    Sketcher.Constraint("Horizontal", 1),
    Sketcher.Constraint("Vertical", 2),
    Sketcher.Constraint("Horizontal", 3),
    Sketcher.Constraint("DistanceX", 1, 1, 1, 2, Q("3 mm")),
    Sketcher.Constraint("DistanceY", 0, 2, 0, 1, Q("4 mm")),
    Sketcher.Constraint("DistanceX", 0, 2, -1, 1, Q("2.4 mm")),
    Sketcher.Constraint("DistanceY", -1, 1, 0, 2, Q("3.5 mm")),
])
pocket5 = body2.newObject("PartDesign::Pocket", "Pocket004")
pocket5.Profile = sketch13
pocket5.Length = 5

# Sketch on XY plane
sketch14 = body2.newObject("Sketcher::SketchObject", "Sketch013")
sketch14.AttachmentSupport = (doc.getObject("XY_Plane001"), [""])
sketch14.MapMode = "FlatFace"
sketch14.AttachmentOffset = App.Placement(V(0, 0, -30), App.Rotation())
sketch14.addGeometry([
    Part.LineSegment(V(-12.2, -36, 0), V(-19.3, -24.6, 0)),  # 0
    Part.LineSegment(V(-19.3, -24.6, 0), V(1.3, -25.4, 0)),  # 1
    Part.LineSegment(V(1.3, -25.4, 0), V(-5.2, -36, 0)),  # 2
    Part.LineSegment(V(-5.2, -36, 0), V(-12.2, -36, 0)),  # 3
    Part.LineSegment(V(-11.9, -30.5, 0), V(-11.9, -33.5, 0)),  # 4
    Part.LineSegment(V(-11.9, -33.5, 0), V(-5.5, -33.5, 0)),  # 5
    Part.LineSegment(V(-5.5, -33.5, 0), V(-5.5, -30.5, 0)),  # 6
    Part.LineSegment(V(-5.5, -30.5, 0), V(-11.9, -30.5, 0)),  # 7
], False)
sketch14.addConstraint([
    Sketcher.Constraint("Coincident", 0, 2, 1, 1),
    Sketcher.Constraint("Coincident", 1, 2, 2, 1),
    Sketcher.Constraint("Coincident", 2, 2, 3, 1),
    Sketcher.Constraint("Coincident", 3, 2, 0, 1),
    Sketcher.Constraint("Coincident", 4, 2, 5, 1),
    Sketcher.Constraint("Coincident", 5, 2, 6, 1),
    Sketcher.Constraint("Coincident", 6, 2, 7, 1),
    Sketcher.Constraint("Coincident", 7, 2, 4, 1),
    Sketcher.Constraint("Horizontal", 3),
    Sketcher.Constraint("Vertical", 4),
    Sketcher.Constraint("Horizontal", 5),
    Sketcher.Constraint("Vertical", 6),
    Sketcher.Constraint("Horizontal", 7),
    Sketcher.Constraint("DistanceX", 3, 2, 3, 1, Q("7 mm")),
    Sketcher.Constraint("DistanceY", 4, 2, 4, 1, Q("3 mm")),
    Sketcher.Constraint("DistanceX", 5, 1, 5, 2, Q("6.4 mm")),
    Sketcher.Constraint("DistanceY", 2, 2, -1, 1, Q("36 mm")),
    Sketcher.Constraint("DistanceX", 2, 2, -1, 1, Q("5.2 mm")),
    Sketcher.Constraint("DistanceX", 4, 2, -1, 1, Q("11.9 mm")),
    Sketcher.Constraint("DistanceY", 4, 2, -1, 1, Q("33.5 mm")),
    Sketcher.Constraint("Distance", 0, Q("13.416408 mm")),
    Sketcher.Constraint("DistanceX", -1, 1, 1, 2, Q("1.348039 mm")),
    Sketcher.Constraint("Distance", 1, Q("20.668103 mm")),
    Sketcher.Constraint("Distance", 2, Q("12.429205 mm")),
])
pad8 = body2.newObject("PartDesign::Pad", "Pad007")
pad8.Profile = sketch14
pad8.Length = 8

# Sketch on XZ plane
sketch15 = body2.newObject("Sketcher::SketchObject", "Sketch014")
sketch15.AttachmentSupport = (doc.getObject("XZ_Plane001"), [""])
sketch15.MapMode = "FlatFace"
sketch15.AttachmentOffset = App.Placement(V(0, 0, 36), App.Rotation())
sketch15.addGeometry(Part.Circle(V(-8.7, -26, 0), V(0, 0, 1), 1.7), False)
sketch15.addConstraint([
    Sketcher.Constraint("Diameter", 0, Q("3.4 mm")),
    Sketcher.Constraint("DistanceY", 0, 3, -1, 1, Q("26 mm")),
    Sketcher.Constraint("DistanceX", 0, 3, -1, 1, Q("8.7 mm")),
])
pocket6 = body2.newObject("PartDesign::Pocket", "Pocket005")
pocket6.Profile = sketch15
pocket6.Length = 13

# Sketch on XY plane
sketch16 = body2.newObject("Sketcher::SketchObject", "Sketch015")
sketch16.AttachmentSupport = (doc.getObject("XY_Plane001"), [""])
sketch16.MapMode = "FlatFace"
sketch16.AttachmentOffset = App.Placement(V(0, 0, -13), App.Rotation())
sketch16.addGeometry([
    Part.LineSegment(V(-4, -27, 0), V(1, -18, 0)),  # 0
    Part.LineSegment(V(1, -18, 0), V(-4, -9, 0)),  # 1
    Part.LineSegment(V(-4, -9, 0), V(-14, -9, 0)),  # 2
    Part.LineSegment(V(-14, -9, 0), V(-19, -18, 0)),  # 3
    Part.LineSegment(V(-19, -18, 0), V(-14, -27, 0)),  # 4
    Part.LineSegment(V(-14, -27, 0), V(-4, -27, 0)),  # 5
], False)
sketch16.addConstraint([
    Sketcher.Constraint("Coincident", 0, 2, 1, 1),
    Sketcher.Constraint("Coincident", 1, 2, 2, 1),
    Sketcher.Constraint("Coincident", 2, 2, 3, 1),
    Sketcher.Constraint("Coincident", 3, 2, 4, 1),
    Sketcher.Constraint("Coincident", 4, 2, 5, 1),
    Sketcher.Constraint("Coincident", 5, 2, 0, 1),
    Sketcher.Constraint("Horizontal", 2),
    Sketcher.Constraint("Horizontal", 5),
    Sketcher.Constraint("Parallel", 0, 3),
    Sketcher.Constraint("Parallel", 1, 4),
    Sketcher.Constraint("Horizontal", 0, 2, 3, 2),
    Sketcher.Constraint("Vertical", 2, 2, 4, 2),
    Sketcher.Constraint("Vertical", 1, 2, 5, 2),
    Sketcher.Constraint("Angle", 0, Q("60 deg")),
    Sketcher.Constraint("DistanceY", 0, 2, -1, 1, Q("18 mm")),
    Sketcher.Constraint("DistanceY", 4, 2, 2, 2, Q("17.1 mm")),
    Sketcher.Constraint("DistanceX", 2, 2, 2, 1, Q("9.87269 mm")),
    Sketcher.Constraint("DistanceX", -1, 1, 0, 2, Q("1.17269 mm")),
])
pocket7 = body2.newObject("PartDesign::Pocket", "Pocket006")
pocket7.Profile = sketch16
pocket7.Length = 30
pocket7.Midplane = True

# Sketch on XY plane
sketch17 = body2.newObject("Sketcher::SketchObject", "Sketch016")
sketch17.AttachmentSupport = (doc.getObject("XY_Plane001"), [""])
sketch17.MapMode = "FlatFace"
sketch17.AttachmentOffset = App.Placement(V(0, 0, 29), App.Rotation())
sketch17.addGeometry([
    Part.LineSegment(V(-18, 8, 0), V(-18, 6, 0)),
    Part.LineSegment(V(-18, 6, 0), V(16.5, 6, 0)),
    Part.LineSegment(V(16.5, 6, 0), V(16.5, 8, 0)),
    Part.LineSegment(V(16.5, 8, 0), V(-18, 8, 0)),
], False)
sketch17.addConstraint([
    Sketcher.Constraint("Coincident", 0, 2, 1, 1),
    Sketcher.Constraint("Coincident", 1, 2, 2, 1),
    Sketcher.Constraint("Coincident", 2, 2, 3, 1),
    Sketcher.Constraint("Coincident", 3, 2, 0, 1),
    Sketcher.Constraint("Vertical", 0),
    Sketcher.Constraint("Horizontal", 1),
    Sketcher.Constraint("Vertical", 2),
    Sketcher.Constraint("Horizontal", 3),
    Sketcher.Constraint("DistanceY", 0, 2, 0, 1, Q("2 mm")),
    Sketcher.Constraint("DistanceX", 1, 1, 1, 2, Q("34.5 mm")),
    Sketcher.Constraint("DistanceX", 0, 2, -1, 1, Q("18 mm")),
    Sketcher.Constraint("DistanceY", -1, 1, 0, 2, Q("6 mm")),
])
pocket8 = body2.newObject("PartDesign::Pocket", "Pocket007")
pocket8.Profile = sketch17
pocket8.Length = 100

doc.recompute()
